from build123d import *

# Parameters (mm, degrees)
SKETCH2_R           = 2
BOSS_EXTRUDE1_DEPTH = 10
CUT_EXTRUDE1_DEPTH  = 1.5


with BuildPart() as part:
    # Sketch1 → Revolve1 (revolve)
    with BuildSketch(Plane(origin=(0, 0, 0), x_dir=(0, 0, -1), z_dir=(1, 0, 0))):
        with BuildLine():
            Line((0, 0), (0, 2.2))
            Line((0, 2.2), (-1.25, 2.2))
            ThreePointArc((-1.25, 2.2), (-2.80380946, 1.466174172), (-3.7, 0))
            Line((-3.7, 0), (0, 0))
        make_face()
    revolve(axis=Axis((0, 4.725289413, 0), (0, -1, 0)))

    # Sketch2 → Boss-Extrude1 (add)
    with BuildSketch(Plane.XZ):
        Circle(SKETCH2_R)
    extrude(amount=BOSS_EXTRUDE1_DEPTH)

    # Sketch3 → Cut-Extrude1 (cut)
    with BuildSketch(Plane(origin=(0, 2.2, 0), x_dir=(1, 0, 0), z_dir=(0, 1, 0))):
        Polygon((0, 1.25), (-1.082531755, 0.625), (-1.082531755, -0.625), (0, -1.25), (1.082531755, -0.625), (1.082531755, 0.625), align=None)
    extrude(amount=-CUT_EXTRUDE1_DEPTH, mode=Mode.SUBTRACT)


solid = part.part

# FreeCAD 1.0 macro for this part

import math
import FreeCAD as App
import Part
import Sketcher

V = App.Vector
Q = App.Units.Quantity

doc = App.newDocument("Part")
params = doc.addObject("Spreadsheet::Sheet", "Params")
for row, (alias, value) in enumerate([
    ("sketch1_radius", "3 mm"),
    ("sketch1_width", "2.2 mm"),
    ("sketch1_height", "3.7 mm"),
    ("sketch1_height2", "1.25 mm"),
    ("revolution_angle", "360 deg"),
    ("sketch2_diameter", "4 mm"),
    ("pad1_length", "10 mm"),
    ("sketch3_height", "1.25 mm"),
    ("pocket1_length", "1.5 mm"),
], start=1):
    params.set(f"A{row}", alias)
    params.set(f"B{row}", "=" + value)
    params.setAlias(f"B{row}", alias)

body = doc.addObject("PartDesign::Body", "Body")

sketch1 = doc.addObject("Sketcher::SketchObject", "Sketch")
body.addObject(sketch1)
sketch1.AttachmentSupport = (doc.YZ_Plane, [""])
sketch1.MapMode = "FlatFace"
sketch1.addGeometry(Part.LineSegment(V(0, 0, 0), V(2.2, 0, 0)), False)
sketch1.addGeometry(Part.LineSegment(V(2.2, 0, 0), V(2.2, 1.2, 0)), False)
sketch1.addGeometry(Part.ArcOfCircle(Part.Circle(V(-0.8, 0.8, 0), V(0, 0, 1), 3), math.radians(9), math.radians(75)), False)
sketch1.addGeometry(Part.LineSegment(V(0, 3.7, 0), V(0, 0, 0)), False)
sketch1.addConstraint(Sketcher.Constraint("Coincident", 0, 2, 1, 1))
sketch1.addConstraint(Sketcher.Constraint("Coincident", 1, 2, 2, 1))
sketch1.addConstraint(Sketcher.Constraint("Coincident", 2, 2, 3, 1))
sketch1.addConstraint(Sketcher.Constraint("Coincident", 3, 2, 0, 1))
sketch1.addConstraint(Sketcher.Constraint("Horizontal", 0))
sketch1.addConstraint(Sketcher.Constraint("Vertical", 1))
sketch1.addConstraint(Sketcher.Constraint("Vertical", 3))
sketch1.addConstraint(Sketcher.Constraint("Coincident", 3, 2, -1, 1))
sketch1.addConstraint(Sketcher.Constraint("Radius", 2, 3.0))
sketch1.addConstraint(Sketcher.Constraint("DistanceX", 0, 1, 0, 2, 2.2))
sketch1.addConstraint(Sketcher.Constraint("DistanceY", 3, 2, 3, 1, 3.7))
sketch1.addConstraint(Sketcher.Constraint("DistanceY", 1, 1, 1, 2, 1.25))
sketch1.setExpression("Constraints[8]", "Params.sketch1_radius")
sketch1.setExpression("Constraints[9]", "Params.sketch1_width")
sketch1.setExpression("Constraints[10]", "Params.sketch1_height")
sketch1.setExpression("Constraints[11]", "Params.sketch1_height2")
revolution = doc.addObject("PartDesign::Revolution", "Revolution")
body.addObject(revolution)
revolution.Profile = sketch1
revolution.ReferenceAxis = (sketch1, ["H_Axis"])
revolution.setExpression("Angle", "Params.revolution_angle")

sketch2 = doc.addObject("Sketcher::SketchObject", "Sketch001")
body.addObject(sketch2)
sketch2.AttachmentSupport = (doc.XZ_Plane, [""])
sketch2.MapMode = "FlatFace"
sketch2.addGeometry(Part.Circle(V(0, 0, 0), V(0, 0, 1), 2), False)
sketch2.addConstraint(Sketcher.Constraint("Coincident", 0, 3, -1, 1))
sketch2.addConstraint(Sketcher.Constraint("Diameter", 0, 4.0))
sketch2.setExpression("Constraints[1]", "Params.sketch2_diameter")
pad1 = doc.addObject("PartDesign::Pad", "Pad")
body.addObject(pad1)
pad1.Profile = sketch2
pad1.setExpression("Length", "Params.pad1_length")

sketch3 = doc.addObject("Sketcher::SketchObject", "Sketch002")
body.addObject(sketch3)
sketch3.AttachmentSupport = (doc.XZ_Plane, [""])
sketch3.MapMode = "FlatFace"
sketch3.AttachmentOffset = App.Placement(V(0, 0, -2.2), App.Rotation())
sketch3.addGeometry(Part.LineSegment(V(0, -1.2, 0), V(-1.1, -0.6, 0)), False)
sketch3.addGeometry(Part.LineSegment(V(-1.1, -0.6, 0), V(-1.1, 0.6, 0)), False)
sketch3.addGeometry(Part.LineSegment(V(-1.1, 0.6, 0), V(0, 1.2, 0)), False)
sketch3.addGeometry(Part.LineSegment(V(0, 1.2, 0), V(1.1, 0.6, 0)), False)
sketch3.addGeometry(Part.LineSegment(V(1.1, 0.6, 0), V(1.1, -0.6, 0)), False)
sketch3.addGeometry(Part.LineSegment(V(1.1, -0.6, 0), V(0, -1.2, 0)), False)
sketch3.addConstraint(Sketcher.Constraint("Coincident", 0, 2, 1, 1))
sketch3.addConstraint(Sketcher.Constraint("Coincident", 1, 2, 2, 1))
sketch3.addConstraint(Sketcher.Constraint("Coincident", 2, 2, 3, 1))
sketch3.addConstraint(Sketcher.Constraint("Coincident", 3, 2, 4, 1))
sketch3.addConstraint(Sketcher.Constraint("Coincident", 4, 2, 5, 1))
sketch3.addConstraint(Sketcher.Constraint("Coincident", 5, 2, 0, 1))
sketch3.addConstraint(Sketcher.Constraint("Vertical", 1))
sketch3.addConstraint(Sketcher.Constraint("Vertical", 4))
sketch3.addConstraint(Sketcher.Constraint("Symmetric", 0, 2, 3, 2, -1, 1))
sketch3.addConstraint(Sketcher.Constraint("Symmetric", 2, 2, 5, 2, -1, 1))
sketch3.addConstraint(Sketcher.Constraint("PointOnObject", 2, 2, -2))
sketch3.addConstraint(Sketcher.Constraint("Parallel", 2, 5))
sketch3.addConstraint(Sketcher.Constraint("Horizontal", 1, 2, 3, 2))
sketch3.addConstraint(Sketcher.Constraint("Angle", 0, Q("150 deg")))
sketch3.addConstraint(Sketcher.Constraint("DistanceY", 1, 1, 1, 2, 1.25))
sketch3.addConstraint(Sketcher.Constraint("DistanceY", 5, 2, 2, 2, 2.5))
sketch3.setExpression("Constraints[14]", "Params.sketch3_height")
pocket1 = doc.addObject("PartDesign::Pocket", "Pocket")
body.addObject(pocket1)
pocket1.Profile = sketch3
pocket1.setExpression("Length", "Params.pocket1_length")
pocket1.Reversed = True

doc.recompute()
